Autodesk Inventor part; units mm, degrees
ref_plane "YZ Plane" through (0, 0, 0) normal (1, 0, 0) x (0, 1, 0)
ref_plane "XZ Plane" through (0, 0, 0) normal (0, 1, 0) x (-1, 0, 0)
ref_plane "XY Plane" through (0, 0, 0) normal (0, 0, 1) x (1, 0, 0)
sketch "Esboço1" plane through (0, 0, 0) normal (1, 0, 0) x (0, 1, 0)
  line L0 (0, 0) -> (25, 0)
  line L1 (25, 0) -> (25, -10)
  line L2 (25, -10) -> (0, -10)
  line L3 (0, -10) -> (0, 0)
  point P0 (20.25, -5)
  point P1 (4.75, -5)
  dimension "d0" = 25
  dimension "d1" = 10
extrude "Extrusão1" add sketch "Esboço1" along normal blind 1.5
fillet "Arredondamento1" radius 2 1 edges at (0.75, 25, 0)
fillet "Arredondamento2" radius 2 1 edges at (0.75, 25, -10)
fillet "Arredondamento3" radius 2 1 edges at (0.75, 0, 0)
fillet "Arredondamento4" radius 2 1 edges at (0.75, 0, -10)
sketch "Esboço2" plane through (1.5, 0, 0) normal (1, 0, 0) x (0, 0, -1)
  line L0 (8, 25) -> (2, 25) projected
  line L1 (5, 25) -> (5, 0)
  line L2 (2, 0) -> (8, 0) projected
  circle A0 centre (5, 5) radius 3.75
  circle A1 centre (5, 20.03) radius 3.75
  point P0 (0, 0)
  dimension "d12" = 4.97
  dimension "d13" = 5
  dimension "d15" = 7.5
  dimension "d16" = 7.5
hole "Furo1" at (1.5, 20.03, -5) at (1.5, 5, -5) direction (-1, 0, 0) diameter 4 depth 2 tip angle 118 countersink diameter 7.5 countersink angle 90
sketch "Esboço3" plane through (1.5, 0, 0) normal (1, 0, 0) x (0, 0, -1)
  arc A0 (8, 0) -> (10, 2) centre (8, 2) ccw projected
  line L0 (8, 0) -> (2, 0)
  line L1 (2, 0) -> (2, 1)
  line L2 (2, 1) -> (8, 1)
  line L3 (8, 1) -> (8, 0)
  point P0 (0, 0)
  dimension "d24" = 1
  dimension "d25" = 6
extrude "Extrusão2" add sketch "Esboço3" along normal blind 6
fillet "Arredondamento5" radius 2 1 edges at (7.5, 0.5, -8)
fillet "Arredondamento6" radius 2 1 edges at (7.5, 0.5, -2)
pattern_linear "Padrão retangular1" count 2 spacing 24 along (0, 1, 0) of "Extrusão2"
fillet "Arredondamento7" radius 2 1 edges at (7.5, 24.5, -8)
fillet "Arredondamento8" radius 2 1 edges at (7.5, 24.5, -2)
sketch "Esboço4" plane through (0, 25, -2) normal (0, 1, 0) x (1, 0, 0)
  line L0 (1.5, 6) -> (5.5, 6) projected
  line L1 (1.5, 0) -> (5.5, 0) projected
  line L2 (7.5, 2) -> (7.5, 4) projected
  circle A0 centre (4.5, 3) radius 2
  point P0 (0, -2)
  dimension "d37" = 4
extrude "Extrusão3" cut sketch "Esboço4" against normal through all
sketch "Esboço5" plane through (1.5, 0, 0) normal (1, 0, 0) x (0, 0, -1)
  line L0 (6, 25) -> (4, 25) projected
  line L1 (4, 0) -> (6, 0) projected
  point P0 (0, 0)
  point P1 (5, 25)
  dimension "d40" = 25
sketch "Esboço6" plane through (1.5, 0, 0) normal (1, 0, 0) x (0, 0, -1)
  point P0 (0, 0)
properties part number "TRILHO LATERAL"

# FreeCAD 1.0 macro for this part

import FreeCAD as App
import Part
import Sketcher


def edges_at(feature, points):
    """Names of the edges that pass closest to the given points."""
    edges = feature.Shape.Edges
    near = lambda p: min(range(len(edges)), key=lambda i: edges[i].distToShape(Part.Vertex(*p))[0])
    return sorted({f"Edge{near(p) + 1}" for p in points})


def add_polygon(sketch, points):
    """Adds a closed chain of lines whose ends are joined by coincident constraints."""
    first, n = sketch.GeometryCount, len(points)
    for a, b in zip(points, points[1:] + points[:1]):
        sketch.addGeometry(Part.LineSegment(App.Vector(*a, 0), App.Vector(*b, 0)), False)
    for i in range(n):
        sketch.addConstraint(Sketcher.Constraint("Coincident", first + i, 2, first + (i + 1) % n, 1))

doc = App.newDocument("Part")
body = doc.addObject("PartDesign::Body", "Body")

sketch1 = doc.addObject("Sketcher::SketchObject", "Sketch")
body.addObject(sketch1)
sketch1.AttachmentSupport = (doc.YZ_Plane, [""])
sketch1.MapMode = "FlatFace"
add_polygon(sketch1, [(25, 0), (0, 0), (0, -10), (25, -10)])
sketch1.addConstraint([
    Sketcher.Constraint("Horizontal", 0),
    Sketcher.Constraint("Vertical", 1),
    Sketcher.Constraint("Horizontal", 2),
    Sketcher.Constraint("Vertical", 3),
    Sketcher.Constraint("Coincident", 0, 2, -1, 1),
    Sketcher.Constraint("DistanceX", 0, 2, 0, 1, 25.0),
    Sketcher.Constraint("DistanceY", 1, 2, 1, 1, 10.0),
])
pad1 = doc.addObject("PartDesign::Pad", "Pad")
body.addObject(pad1)
pad1.Profile = sketch1
pad1.Length = 1.5
doc.recompute()

fillet = doc.addObject("PartDesign::Fillet", "Fillet")
body.addObject(fillet)
fillet.Base = (pad1, edges_at(pad1, [(0.75, 25, 0)]))
fillet.Radius = 2
doc.recompute()

fillet2 = doc.addObject("PartDesign::Fillet", "Fillet001")
body.addObject(fillet2)
fillet2.Base = (fillet, edges_at(fillet, [(0.75, 25, -10)]))
fillet2.Radius = 2
doc.recompute()

fillet3 = doc.addObject("PartDesign::Fillet", "Fillet002")
body.addObject(fillet3)
fillet3.Base = (fillet2, edges_at(fillet2, [(0.75, 0, 0)]))
fillet3.Radius = 2
doc.recompute()

fillet4 = doc.addObject("PartDesign::Fillet", "Fillet003")
body.addObject(fillet4)
fillet4.Base = (fillet3, edges_at(fillet3, [(0.75, 0, -10)]))
fillet4.Radius = 2

sketch2 = doc.addObject("Sketcher::SketchObject", "Sketch001")
body.addObject(sketch2)
sketch2.AttachmentSupport = (doc.YZ_Plane, [""])
sketch2.MapMode = "FlatFace"
sketch2.AttachmentOffset = App.Placement(App.Vector(0, 0, 1.5), App.Rotation())
sketch2.addGeometry([
    Part.Circle(App.Vector(20.03, -5, 0), App.Vector(0, 0, 1), 2),
    Part.Circle(App.Vector(5, -5, 0), App.Vector(0, 0, 1), 2),
], False)
sketch2.addConstraint([
    Sketcher.Constraint("Equal", 0, 1),
    Sketcher.Constraint("Horizontal", 0, 3, 1, 3),
    Sketcher.Constraint("Diameter", 0, 4.0),
    Sketcher.Constraint("DistanceY", 0, 3, -1, 1, 5.0),
    Sketcher.Constraint("DistanceX", -1, 1, 1, 3, 5.0),
    Sketcher.Constraint("DistanceX", -1, 1, 0, 3, 20.03),
])
doc.recompute()
hole = doc.addObject("PartDesign::Hole", "Hole")
body.addObject(hole)
hole.Profile = sketch2
hole.ThreadType = "None"
hole.Diameter = 4
hole.DepthType = "Dimension"
hole.Depth = 2
hole.DrillPoint = "Angled"
hole.DrillPointAngle = 118
hole.HoleCutType = "Countersink"
hole.HoleCutDiameter = 7.5
hole.HoleCutCountersinkAngle = 90

sketch3 = doc.addObject("Sketcher::SketchObject", "Sketch002")
body.addObject(sketch3)
sketch3.AttachmentSupport = (doc.YZ_Plane, [""])
sketch3.MapMode = "FlatFace"
sketch3.AttachmentOffset = App.Placement(App.Vector(0, 0, 1.5), App.Rotation())
add_polygon(sketch3, [(0, -2), (0, -8), (1, -8), (1, -2)])
sketch3.addConstraint([
    Sketcher.Constraint("Vertical", 0),
    Sketcher.Constraint("Horizontal", 1),
    Sketcher.Constraint("Vertical", 2),
    Sketcher.Constraint("Horizontal", 3),
    Sketcher.Constraint("PointOnObject", 0, 2, -2),
    Sketcher.Constraint("DistanceX", 1, 1, 1, 2, 1.0),
    Sketcher.Constraint("DistanceY", 0, 2, 0, 1, 6.0),
    Sketcher.Constraint("DistanceY", 0, 2, -1, 1, 8.0),
])
pad2 = doc.addObject("PartDesign::Pad", "Pad001")
body.addObject(pad2)
pad2.Profile = sketch3
pad2.Length = 6
doc.recompute()

fillet5 = doc.addObject("PartDesign::Fillet", "Fillet004")
body.addObject(fillet5)
fillet5.Base = (pad2, edges_at(pad2, [(7.5, 0.5, -8)]))
fillet5.Radius = 2
doc.recompute()

fillet6 = doc.addObject("PartDesign::Fillet", "Fillet005")
body.addObject(fillet6)
fillet6.Base = (fillet5, edges_at(fillet5, [(7.5, 0.5, -2)]))
fillet6.Radius = 2
doc.recompute()

linearpattern = doc.addObject("PartDesign::LinearPattern", "LinearPattern")
body.addObject(linearpattern)
linearpattern.Originals = [pad2]
linearpattern.Direction = (doc.Y_Axis, [""])
linearpattern.Mode = "offset"
linearpattern.Offset = 24
linearpattern.Occurrences = 2
body.Tip = linearpattern
doc.recompute()

fillet7 = doc.addObject("PartDesign::Fillet", "Fillet006")
body.addObject(fillet7)
fillet7.Base = (linearpattern, edges_at(linearpattern, [(7.5, 24.5, -8)]))
fillet7.Radius = 2
doc.recompute()

fillet8 = doc.addObject("PartDesign::Fillet", "Fillet007")
body.addObject(fillet8)
fillet8.Base = (fillet7, edges_at(fillet7, [(7.5, 24.5, -2)]))
fillet8.Radius = 2

sketch4 = doc.addObject("Sketcher::SketchObject", "Sketch003")
body.addObject(sketch4)
sketch4.AttachmentSupport = (doc.XZ_Plane, [""])
sketch4.MapMode = "FlatFace"
sketch4.AttachmentOffset = App.Placement(App.Vector(0, 0, -25), App.Rotation())
sketch4.addGeometry(Part.Circle(App.Vector(4.5, -5, 0), App.Vector(0, 0, 1), 2), False)
sketch4.addConstraint([
    Sketcher.Constraint("Diameter", 0, 4.0),
    Sketcher.Constraint("DistanceY", 0, 3, -1, 1, 5.0),
    Sketcher.Constraint("DistanceX", -1, 1, 0, 3, 4.5),
])
pocket1 = doc.addObject("PartDesign::Pocket", "Pocket")
body.addObject(pocket1)
pocket1.Profile = sketch4
pocket1.Type = "ThroughAll"
pocket1.Reversed = True

doc.recompute()
